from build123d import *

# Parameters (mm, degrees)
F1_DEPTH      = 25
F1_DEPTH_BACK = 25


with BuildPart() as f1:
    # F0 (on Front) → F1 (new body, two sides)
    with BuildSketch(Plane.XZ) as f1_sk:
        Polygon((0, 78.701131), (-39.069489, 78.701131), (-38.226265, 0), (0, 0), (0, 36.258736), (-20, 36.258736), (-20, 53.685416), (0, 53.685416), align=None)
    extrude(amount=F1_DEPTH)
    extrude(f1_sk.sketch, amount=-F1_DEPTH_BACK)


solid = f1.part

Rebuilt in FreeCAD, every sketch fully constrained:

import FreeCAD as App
import Part
import Sketcher

V = App.Vector


def add_polygon(sketch, points):
    """Adds a closed chain of lines whose ends are joined by coincident constraints."""
    first, n = sketch.GeometryCount, len(points)
    for a, b in zip(points, points[1:] + points[:1]):
        sketch.addGeometry(Part.LineSegment(App.Vector(*a, 0), App.Vector(*b, 0)), False)
    for i in range(n):
        sketch.addConstraint(Sketcher.Constraint("Coincident", first + i, 2, first + (i + 1) % n, 1))

doc = App.newDocument("Part")
body = doc.addObject("PartDesign::Body", "Body")

# Sketch on XZ plane
sketch1 = body.newObject("Sketcher::SketchObject", "Sketch")
sketch1.AttachmentSupport = (doc.getObject("XZ_Plane"), [""])
sketch1.MapMode = "FlatFace"
add_polygon(sketch1, [(0, 79), (-39, 79), (-38, 0), (0, 0), (0, 36), (-20, 36), (-20, 54), (0, 54)])  # lines 0-7
sketch1.addConstraint(Sketcher.Constraint("Horizontal", 0))
sketch1.addConstraint(Sketcher.Constraint("Horizontal", 2))
sketch1.addConstraint(Sketcher.Constraint("Vertical", 3))
sketch1.addConstraint(Sketcher.Constraint("Horizontal", 4))
sketch1.addConstraint(Sketcher.Constraint("Vertical", 5))
sketch1.addConstraint(Sketcher.Constraint("Horizontal", 6))
sketch1.addConstraint(Sketcher.Constraint("Vertical", 7))
sketch1.addConstraint(Sketcher.Constraint("Coincident", 2, 2, -1, 1))
sketch1.addConstraint(Sketcher.Constraint("PointOnObject", 6, 2, -2))
sketch1.addConstraint(Sketcher.Constraint("DistanceX", 4, 2, 4, 1, 20.0))
sketch1.addConstraint(Sketcher.Constraint("DistanceX", 0, 2, 0, 1, 39.069489))
sketch1.addConstraint(Sketcher.Constraint("DistanceY", 5, 1, 5, 2, 17.42668))
sketch1.addConstraint(Sketcher.Constraint("Distance", 1, 78.705648))
sketch1.addConstraint(Sketcher.Constraint("DistanceX", 2, 1, 2, 2, 38.226265))
sketch1.addConstraint(Sketcher.Constraint("DistanceY", 3, 1, 3, 2, 36.258736))
pad1 = body.newObject("PartDesign::Pad", "Pad")
pad1.Profile = sketch1
pad1.Type = "TwoLengths"
pad1.Length = 25
pad1.Length2 = 25

doc.recompute()
